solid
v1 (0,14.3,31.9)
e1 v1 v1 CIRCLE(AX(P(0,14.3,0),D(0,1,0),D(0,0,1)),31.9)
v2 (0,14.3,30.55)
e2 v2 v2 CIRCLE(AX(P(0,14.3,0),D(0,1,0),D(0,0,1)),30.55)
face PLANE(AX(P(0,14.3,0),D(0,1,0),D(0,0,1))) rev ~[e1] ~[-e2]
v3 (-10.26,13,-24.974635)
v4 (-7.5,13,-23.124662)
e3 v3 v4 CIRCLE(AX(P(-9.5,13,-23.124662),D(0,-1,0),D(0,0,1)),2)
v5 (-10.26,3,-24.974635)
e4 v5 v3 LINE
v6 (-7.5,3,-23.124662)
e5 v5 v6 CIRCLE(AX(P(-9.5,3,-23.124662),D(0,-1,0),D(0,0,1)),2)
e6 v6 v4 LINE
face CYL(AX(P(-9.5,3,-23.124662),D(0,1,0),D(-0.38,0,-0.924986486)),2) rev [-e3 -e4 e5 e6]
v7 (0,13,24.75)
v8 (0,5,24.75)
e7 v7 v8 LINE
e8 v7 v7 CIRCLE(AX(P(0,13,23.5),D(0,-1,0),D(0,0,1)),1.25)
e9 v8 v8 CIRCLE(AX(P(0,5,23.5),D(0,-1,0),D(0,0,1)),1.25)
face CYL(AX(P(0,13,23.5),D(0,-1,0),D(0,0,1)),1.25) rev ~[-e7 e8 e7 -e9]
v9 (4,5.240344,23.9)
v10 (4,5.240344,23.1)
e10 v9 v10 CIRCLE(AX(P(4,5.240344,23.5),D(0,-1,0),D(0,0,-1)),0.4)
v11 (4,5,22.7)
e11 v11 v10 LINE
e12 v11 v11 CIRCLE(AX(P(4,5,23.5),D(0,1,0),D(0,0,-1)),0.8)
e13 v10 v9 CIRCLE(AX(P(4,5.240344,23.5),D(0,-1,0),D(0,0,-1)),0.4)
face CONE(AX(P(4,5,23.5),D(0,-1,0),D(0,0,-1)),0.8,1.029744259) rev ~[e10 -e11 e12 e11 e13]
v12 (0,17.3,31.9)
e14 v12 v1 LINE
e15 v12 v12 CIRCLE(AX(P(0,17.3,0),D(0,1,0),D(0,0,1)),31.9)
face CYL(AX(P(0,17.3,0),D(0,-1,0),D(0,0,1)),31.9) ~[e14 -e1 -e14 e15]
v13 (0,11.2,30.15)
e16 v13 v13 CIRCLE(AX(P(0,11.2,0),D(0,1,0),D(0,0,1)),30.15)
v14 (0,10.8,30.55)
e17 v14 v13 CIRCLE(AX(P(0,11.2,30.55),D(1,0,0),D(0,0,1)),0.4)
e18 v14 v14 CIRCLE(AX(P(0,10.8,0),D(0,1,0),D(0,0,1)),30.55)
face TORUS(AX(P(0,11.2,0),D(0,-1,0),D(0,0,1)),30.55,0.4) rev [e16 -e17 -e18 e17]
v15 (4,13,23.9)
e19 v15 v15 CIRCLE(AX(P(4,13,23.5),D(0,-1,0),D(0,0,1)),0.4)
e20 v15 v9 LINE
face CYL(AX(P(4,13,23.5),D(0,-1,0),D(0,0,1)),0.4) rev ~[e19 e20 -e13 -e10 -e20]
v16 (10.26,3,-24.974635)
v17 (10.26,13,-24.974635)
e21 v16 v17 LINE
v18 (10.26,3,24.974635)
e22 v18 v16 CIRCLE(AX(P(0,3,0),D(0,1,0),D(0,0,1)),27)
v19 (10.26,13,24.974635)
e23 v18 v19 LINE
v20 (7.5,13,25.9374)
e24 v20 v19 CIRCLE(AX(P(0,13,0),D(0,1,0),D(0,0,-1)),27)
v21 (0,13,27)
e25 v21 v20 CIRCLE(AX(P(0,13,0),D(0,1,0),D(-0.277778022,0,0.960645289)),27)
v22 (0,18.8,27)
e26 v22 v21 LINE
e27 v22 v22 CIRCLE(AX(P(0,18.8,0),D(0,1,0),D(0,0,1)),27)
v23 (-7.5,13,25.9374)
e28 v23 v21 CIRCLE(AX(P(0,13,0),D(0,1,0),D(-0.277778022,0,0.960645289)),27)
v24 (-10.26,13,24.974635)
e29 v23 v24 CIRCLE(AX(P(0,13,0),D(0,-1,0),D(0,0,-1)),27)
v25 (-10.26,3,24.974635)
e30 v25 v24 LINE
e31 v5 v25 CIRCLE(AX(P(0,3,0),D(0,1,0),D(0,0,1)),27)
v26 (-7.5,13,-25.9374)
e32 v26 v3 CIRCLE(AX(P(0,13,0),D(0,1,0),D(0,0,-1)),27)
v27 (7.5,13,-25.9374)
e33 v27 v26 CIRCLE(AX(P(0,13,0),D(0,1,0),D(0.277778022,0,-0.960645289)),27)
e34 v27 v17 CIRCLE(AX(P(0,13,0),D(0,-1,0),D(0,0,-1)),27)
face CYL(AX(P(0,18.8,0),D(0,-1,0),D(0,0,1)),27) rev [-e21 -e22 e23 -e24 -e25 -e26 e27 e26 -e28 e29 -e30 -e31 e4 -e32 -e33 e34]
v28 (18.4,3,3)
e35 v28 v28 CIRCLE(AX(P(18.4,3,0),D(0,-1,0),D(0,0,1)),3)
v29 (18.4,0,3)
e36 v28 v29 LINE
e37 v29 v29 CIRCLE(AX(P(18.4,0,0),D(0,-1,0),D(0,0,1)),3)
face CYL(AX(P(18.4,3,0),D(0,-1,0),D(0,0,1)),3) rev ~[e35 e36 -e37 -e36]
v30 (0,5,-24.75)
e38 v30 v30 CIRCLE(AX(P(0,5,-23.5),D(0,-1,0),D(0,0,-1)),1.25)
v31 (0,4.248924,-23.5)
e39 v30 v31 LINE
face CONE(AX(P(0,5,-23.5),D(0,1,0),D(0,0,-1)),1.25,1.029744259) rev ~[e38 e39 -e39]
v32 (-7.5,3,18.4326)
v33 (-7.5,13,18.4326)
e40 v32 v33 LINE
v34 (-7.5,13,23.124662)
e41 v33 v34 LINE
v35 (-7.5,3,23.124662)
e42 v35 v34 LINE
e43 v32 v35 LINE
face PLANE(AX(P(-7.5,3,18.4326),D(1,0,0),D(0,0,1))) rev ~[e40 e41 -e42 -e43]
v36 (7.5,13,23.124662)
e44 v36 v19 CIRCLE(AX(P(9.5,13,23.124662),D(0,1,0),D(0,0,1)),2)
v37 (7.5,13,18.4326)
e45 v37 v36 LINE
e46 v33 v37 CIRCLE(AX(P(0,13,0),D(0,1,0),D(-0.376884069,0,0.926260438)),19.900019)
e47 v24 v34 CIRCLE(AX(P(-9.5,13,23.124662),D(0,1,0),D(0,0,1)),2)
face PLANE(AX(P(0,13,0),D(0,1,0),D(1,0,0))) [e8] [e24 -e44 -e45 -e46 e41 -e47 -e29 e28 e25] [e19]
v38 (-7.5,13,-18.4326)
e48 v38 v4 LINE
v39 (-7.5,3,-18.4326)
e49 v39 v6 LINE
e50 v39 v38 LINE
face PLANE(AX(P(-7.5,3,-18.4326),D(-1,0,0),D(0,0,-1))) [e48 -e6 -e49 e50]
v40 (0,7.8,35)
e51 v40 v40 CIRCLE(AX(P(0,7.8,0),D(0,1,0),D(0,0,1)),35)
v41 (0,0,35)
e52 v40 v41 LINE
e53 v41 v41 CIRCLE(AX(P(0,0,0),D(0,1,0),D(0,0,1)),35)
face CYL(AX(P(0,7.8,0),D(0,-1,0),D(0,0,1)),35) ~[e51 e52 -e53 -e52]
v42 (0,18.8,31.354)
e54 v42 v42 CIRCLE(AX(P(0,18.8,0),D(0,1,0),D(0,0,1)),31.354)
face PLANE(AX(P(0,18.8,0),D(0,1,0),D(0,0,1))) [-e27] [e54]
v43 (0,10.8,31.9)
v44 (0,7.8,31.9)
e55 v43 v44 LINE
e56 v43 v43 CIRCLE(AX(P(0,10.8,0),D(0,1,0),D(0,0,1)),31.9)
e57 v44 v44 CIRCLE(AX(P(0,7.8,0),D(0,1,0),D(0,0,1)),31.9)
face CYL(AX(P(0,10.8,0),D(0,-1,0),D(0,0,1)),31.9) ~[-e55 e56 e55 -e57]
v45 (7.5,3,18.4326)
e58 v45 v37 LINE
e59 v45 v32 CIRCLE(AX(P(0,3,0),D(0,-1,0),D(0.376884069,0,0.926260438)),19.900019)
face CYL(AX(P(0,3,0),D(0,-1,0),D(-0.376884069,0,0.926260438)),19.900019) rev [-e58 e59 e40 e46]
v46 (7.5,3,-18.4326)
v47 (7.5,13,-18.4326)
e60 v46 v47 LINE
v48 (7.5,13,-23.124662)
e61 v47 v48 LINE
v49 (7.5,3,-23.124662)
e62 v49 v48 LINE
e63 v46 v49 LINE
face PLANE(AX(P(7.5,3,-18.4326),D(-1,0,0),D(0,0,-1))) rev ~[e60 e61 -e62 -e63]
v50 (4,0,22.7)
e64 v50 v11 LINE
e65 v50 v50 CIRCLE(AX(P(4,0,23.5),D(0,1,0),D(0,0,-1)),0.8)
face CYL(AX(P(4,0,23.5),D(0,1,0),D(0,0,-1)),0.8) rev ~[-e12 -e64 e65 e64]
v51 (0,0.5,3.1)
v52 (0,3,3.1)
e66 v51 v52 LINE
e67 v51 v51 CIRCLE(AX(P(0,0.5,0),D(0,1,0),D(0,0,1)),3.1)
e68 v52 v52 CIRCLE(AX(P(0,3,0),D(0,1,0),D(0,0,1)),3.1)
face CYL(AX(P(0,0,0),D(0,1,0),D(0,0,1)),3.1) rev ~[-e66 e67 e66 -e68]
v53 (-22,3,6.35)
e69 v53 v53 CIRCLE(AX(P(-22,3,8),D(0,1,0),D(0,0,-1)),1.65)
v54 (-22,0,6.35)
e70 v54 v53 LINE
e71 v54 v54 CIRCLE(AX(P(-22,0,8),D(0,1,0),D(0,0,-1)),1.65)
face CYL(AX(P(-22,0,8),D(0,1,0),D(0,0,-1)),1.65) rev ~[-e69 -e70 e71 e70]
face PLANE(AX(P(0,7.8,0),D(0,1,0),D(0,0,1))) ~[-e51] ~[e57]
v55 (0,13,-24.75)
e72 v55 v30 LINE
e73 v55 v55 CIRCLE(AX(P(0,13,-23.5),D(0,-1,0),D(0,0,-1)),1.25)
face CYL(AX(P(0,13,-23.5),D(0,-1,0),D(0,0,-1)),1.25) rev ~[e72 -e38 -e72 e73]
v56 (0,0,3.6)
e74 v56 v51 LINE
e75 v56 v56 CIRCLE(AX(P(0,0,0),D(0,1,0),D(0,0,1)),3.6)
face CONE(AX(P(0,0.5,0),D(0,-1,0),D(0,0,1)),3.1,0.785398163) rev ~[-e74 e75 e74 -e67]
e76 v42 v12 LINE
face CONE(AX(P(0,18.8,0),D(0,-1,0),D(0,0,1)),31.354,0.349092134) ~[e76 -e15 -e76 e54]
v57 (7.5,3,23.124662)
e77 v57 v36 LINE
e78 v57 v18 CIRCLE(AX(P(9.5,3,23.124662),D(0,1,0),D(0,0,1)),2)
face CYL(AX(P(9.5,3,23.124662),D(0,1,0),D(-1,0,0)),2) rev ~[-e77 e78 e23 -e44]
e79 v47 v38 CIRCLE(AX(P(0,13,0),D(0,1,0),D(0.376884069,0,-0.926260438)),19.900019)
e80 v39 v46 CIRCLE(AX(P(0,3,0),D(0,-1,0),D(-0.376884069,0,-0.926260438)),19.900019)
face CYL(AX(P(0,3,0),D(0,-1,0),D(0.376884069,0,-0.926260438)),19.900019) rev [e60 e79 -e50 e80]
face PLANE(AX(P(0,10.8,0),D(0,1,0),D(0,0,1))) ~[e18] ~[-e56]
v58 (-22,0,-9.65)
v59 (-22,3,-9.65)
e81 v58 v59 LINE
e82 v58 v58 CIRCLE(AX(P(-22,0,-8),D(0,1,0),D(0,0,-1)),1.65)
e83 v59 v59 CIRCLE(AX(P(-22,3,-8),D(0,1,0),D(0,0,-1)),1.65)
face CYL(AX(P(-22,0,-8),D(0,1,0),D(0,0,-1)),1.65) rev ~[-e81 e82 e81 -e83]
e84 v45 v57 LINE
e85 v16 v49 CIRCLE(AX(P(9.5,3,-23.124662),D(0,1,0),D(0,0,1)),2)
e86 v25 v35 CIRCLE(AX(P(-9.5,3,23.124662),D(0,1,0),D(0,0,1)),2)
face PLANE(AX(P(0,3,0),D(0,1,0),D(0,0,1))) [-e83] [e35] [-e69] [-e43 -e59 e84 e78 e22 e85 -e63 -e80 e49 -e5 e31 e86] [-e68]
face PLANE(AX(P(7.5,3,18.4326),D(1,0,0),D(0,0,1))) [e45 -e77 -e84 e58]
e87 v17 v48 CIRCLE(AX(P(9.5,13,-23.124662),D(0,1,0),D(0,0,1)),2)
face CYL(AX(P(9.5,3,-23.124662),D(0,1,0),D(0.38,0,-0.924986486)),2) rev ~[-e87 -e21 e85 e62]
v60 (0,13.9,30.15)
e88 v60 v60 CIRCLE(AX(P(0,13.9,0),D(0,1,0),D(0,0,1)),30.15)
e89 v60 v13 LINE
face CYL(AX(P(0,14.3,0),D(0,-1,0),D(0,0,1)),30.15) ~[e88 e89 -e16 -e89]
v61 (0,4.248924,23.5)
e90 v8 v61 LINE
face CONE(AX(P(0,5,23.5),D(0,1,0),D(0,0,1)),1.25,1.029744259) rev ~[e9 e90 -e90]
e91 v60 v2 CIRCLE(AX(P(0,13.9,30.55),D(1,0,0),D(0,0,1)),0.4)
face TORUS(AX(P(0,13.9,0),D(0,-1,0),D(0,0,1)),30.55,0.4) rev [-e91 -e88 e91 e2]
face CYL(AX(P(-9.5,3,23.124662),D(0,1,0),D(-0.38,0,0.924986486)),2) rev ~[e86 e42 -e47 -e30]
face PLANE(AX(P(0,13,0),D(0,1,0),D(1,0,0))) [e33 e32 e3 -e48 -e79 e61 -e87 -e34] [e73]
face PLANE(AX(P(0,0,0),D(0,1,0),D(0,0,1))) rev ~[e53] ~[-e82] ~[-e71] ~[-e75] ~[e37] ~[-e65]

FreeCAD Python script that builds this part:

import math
import FreeCAD as App
import Part
import Sketcher
Q = App.Units.Quantity


def edges_at(feature, points):
    """Names of the edges that pass closest to the given points."""
    edges = feature.Shape.Edges
    near = lambda p: min(range(len(edges)), key=lambda i: edges[i].distToShape(Part.Vertex(*p))[0])
    return sorted({f"Edge{near(p) + 1}" for p in points})

doc = App.newDocument("Part")
body = doc.addObject("PartDesign::Body", "Body")

sketch1 = doc.addObject("Sketcher::SketchObject", "Sketch")
body.addObject(sketch1)
sketch1.AttachmentSupport = (doc.YZ_Plane, [""])
sketch1.MapMode = "FlatFace"
sketch1.addGeometry(Part.LineSegment(App.Vector(0, 35, 0), App.Vector(0, 3.1, 0)), False)
sketch1.addGeometry(Part.LineSegment(App.Vector(0, 3.1, 0), App.Vector(3, 3.1, 0)), False)
sketch1.addGeometry(Part.LineSegment(App.Vector(3, 3.1, 0), App.Vector(3, 27, 0)), False)
sketch1.addGeometry(Part.LineSegment(App.Vector(3, 27, 0), App.Vector(18.8, 27, 0)), False)
sketch1.addGeometry(Part.LineSegment(App.Vector(18.8, 27, 0), App.Vector(18.8, 31.4, 0)), False)
sketch1.addGeometry(Part.LineSegment(App.Vector(18.8, 31.4, 0), App.Vector(17.3, 31.9, 0)), False)
sketch1.addGeometry(Part.LineSegment(App.Vector(17.3, 31.9, 0), App.Vector(14.3, 31.9, 0)), False)
sketch1.addGeometry(Part.LineSegment(App.Vector(14.3, 31.9, 0), App.Vector(14.3, 30.1, 0)), False)
sketch1.addGeometry(Part.LineSegment(App.Vector(14.3, 30.1, 0), App.Vector(10.8, 30.1, 0)), False)
sketch1.addGeometry(Part.LineSegment(App.Vector(10.8, 30.1, 0), App.Vector(10.8, 31.9, 0)), False)
sketch1.addGeometry(Part.LineSegment(App.Vector(10.8, 31.9, 0), App.Vector(7.8, 31.9, 0)), False)
sketch1.addGeometry(Part.LineSegment(App.Vector(7.8, 31.9, 0), App.Vector(7.8, 35, 0)), False)
sketch1.addGeometry(Part.LineSegment(App.Vector(7.8, 35, 0), App.Vector(0, 35, 0)), False)
sketch1.addConstraint(Sketcher.Constraint("Coincident", 0, 2, 1, 1))
sketch1.addConstraint(Sketcher.Constraint("Coincident", 1, 2, 2, 1))
sketch1.addConstraint(Sketcher.Constraint("Coincident", 2, 2, 3, 1))
sketch1.addConstraint(Sketcher.Constraint("Coincident", 3, 2, 4, 1))
sketch1.addConstraint(Sketcher.Constraint("Coincident", 4, 2, 5, 1))
sketch1.addConstraint(Sketcher.Constraint("Coincident", 5, 2, 6, 1))
sketch1.addConstraint(Sketcher.Constraint("Coincident", 6, 2, 7, 1))
sketch1.addConstraint(Sketcher.Constraint("Coincident", 7, 2, 8, 1))
sketch1.addConstraint(Sketcher.Constraint("Coincident", 8, 2, 9, 1))
sketch1.addConstraint(Sketcher.Constraint("Coincident", 9, 2, 10, 1))
sketch1.addConstraint(Sketcher.Constraint("Coincident", 10, 2, 11, 1))
sketch1.addConstraint(Sketcher.Constraint("Coincident", 11, 2, 12, 1))
sketch1.addConstraint(Sketcher.Constraint("Coincident", 12, 2, 0, 1))
sketch1.addConstraint(Sketcher.Constraint("Vertical", 0))
sketch1.addConstraint(Sketcher.Constraint("Horizontal", 1))
sketch1.addConstraint(Sketcher.Constraint("Vertical", 2))
sketch1.addConstraint(Sketcher.Constraint("Horizontal", 3))
sketch1.addConstraint(Sketcher.Constraint("Vertical", 4))
sketch1.addConstraint(Sketcher.Constraint("Horizontal", 6))
sketch1.addConstraint(Sketcher.Constraint("Vertical", 7))
sketch1.addConstraint(Sketcher.Constraint("Horizontal", 8))
sketch1.addConstraint(Sketcher.Constraint("Vertical", 9))
sketch1.addConstraint(Sketcher.Constraint("Horizontal", 10))
sketch1.addConstraint(Sketcher.Constraint("Vertical", 11))
sketch1.addConstraint(Sketcher.Constraint("Horizontal", 12))
sketch1.addConstraint(Sketcher.Constraint("PointOnObject", 0, 2, -2))
sketch1.addConstraint(Sketcher.Constraint("Horizontal", 6, 2, 9, 2))
sketch1.addConstraint(Sketcher.Constraint("Equal", 1, 6))
sketch1.addConstraint(Sketcher.Constraint("Equal", 6, 10))
sketch1.addConstraint(Sketcher.Constraint("DistanceX", 1, 1, 1, 2, Q("3 mm")))
sketch1.addConstraint(Sketcher.Constraint("DistanceX", 8, 2, 4, 2, Q("8 mm")))
sketch1.addConstraint(Sketcher.Constraint("DistanceY", 2, 2, 12, 2, Q("8 mm")))
sketch1.addConstraint(Sketcher.Constraint("DistanceX", -1, 1, 3, 2, Q("18.8 mm")))
sketch1.addConstraint(Sketcher.Constraint("DistanceX", 5, 2, 4, 2, Q("1.5 mm")))
sketch1.addConstraint(Sketcher.Constraint("DistanceY", 0, 2, 0, 1, Q("31.9 mm")))
sketch1.addConstraint(Sketcher.Constraint("DistanceY", 11, 1, 11, 2, Q("3.1 mm")))
sketch1.addConstraint(Sketcher.Constraint("DistanceY", -1, 1, 2, 2, Q("27 mm")))
sketch1.addConstraint(Sketcher.Constraint("DistanceY", 7, 2, 7, 1, Q("1.75 mm")))
sketch1.addConstraint(Sketcher.Constraint("DistanceY", 4, 1, 4, 2, Q("4.354 mm")))
revolution = doc.addObject("PartDesign::Revolution", "Revolution")
body.addObject(revolution)
revolution.Profile = sketch1
revolution.ReferenceAxis = (sketch1, ["H_Axis"])
revolution.Angle = 360
doc.recompute()

fillet = doc.addObject("PartDesign::Fillet", "Fillet")
body.addObject(fillet)
fillet.Base = (revolution, edges_at(revolution, [(0, 10.8, -30.15), (0, 14.3, -30.15)]))
fillet.Radius = 0.4
doc.recompute()

chamfer = doc.addObject("PartDesign::Chamfer", "Chamfer")
body.addObject(chamfer)
chamfer.Base = (fillet, edges_at(fillet, [(0, 0, -3.1)]))
chamfer.Size = 0.5

sketch2 = doc.addObject("Sketcher::SketchObject", "Sketch001")
body.addObject(sketch2)
sketch2.AttachmentSupport = (doc.XZ_Plane, [""])
sketch2.MapMode = "FlatFace"
sketch2.AttachmentOffset = App.Placement(App.Vector(0, 0, -3), App.Rotation())
sketch2.addGeometry(Part.LineSegment(App.Vector(-8, 18, 0), App.Vector(-8, 26, 0)), False)
sketch2.addGeometry(Part.ArcOfCircle(Part.Circle(App.Vector(0, 0, 0), App.Vector(0, 0, 1), 27), math.radians(74), math.radians(106)), False)
sketch2.addGeometry(Part.LineSegment(App.Vector(8, 26, 0), App.Vector(8, 18, 0)), False)
sketch2.addGeometry(Part.ArcOfCircle(Part.Circle(App.Vector(0, 0, 0), App.Vector(0, 0, 1), 20), math.radians(68), math.radians(112)), False)
sketch2.addGeometry(Part.ArcOfCircle(Part.Circle(App.Vector(0, 0, 0), App.Vector(0, 0, 1), 20), math.radians(-112), math.radians(-68)), False)
sketch2.addGeometry(Part.LineSegment(App.Vector(8, -18, 0), App.Vector(8, -26, 0)), False)
sketch2.addGeometry(Part.ArcOfCircle(Part.Circle(App.Vector(0, 0, 0), App.Vector(0, 0, 1), 27), math.radians(-106), math.radians(-74)), False)
sketch2.addGeometry(Part.LineSegment(App.Vector(-8, -26, 0), App.Vector(-8, -18, 0)), False)
sketch2.addConstraint(Sketcher.Constraint("Coincident", 0, 2, 1, 2))
sketch2.addConstraint(Sketcher.Constraint("Coincident", 1, 1, 2, 1))
sketch2.addConstraint(Sketcher.Constraint("Coincident", 2, 2, 3, 1))
sketch2.addConstraint(Sketcher.Constraint("Coincident", 3, 2, 0, 1))
sketch2.addConstraint(Sketcher.Constraint("Coincident", 4, 2, 5, 1))
sketch2.addConstraint(Sketcher.Constraint("Coincident", 5, 2, 6, 2))
sketch2.addConstraint(Sketcher.Constraint("Coincident", 6, 1, 7, 1))
sketch2.addConstraint(Sketcher.Constraint("Coincident", 7, 2, 4, 1))
sketch2.addConstraint(Sketcher.Constraint("Vertical", 0))
sketch2.addConstraint(Sketcher.Constraint("Vertical", 2))
sketch2.addConstraint(Sketcher.Constraint("Vertical", 5))
sketch2.addConstraint(Sketcher.Constraint("Vertical", 7))
sketch2.addConstraint(Sketcher.Constraint("Coincident", 1, 3, -1, 1))
sketch2.addConstraint(Sketcher.Constraint("Coincident", 3, 3, -1, 1))
sketch2.addConstraint(Sketcher.Constraint("Coincident", 4, 3, -1, 1))
sketch2.addConstraint(Sketcher.Constraint("Coincident", 6, 3, -1, 1))
sketch2.addConstraint(Sketcher.Constraint("Equal", 3, 4))
sketch2.addConstraint(Sketcher.Constraint("Equal", 1, 6))
sketch2.addConstraint(Sketcher.Constraint("Horizontal", 0, 2, 1, 1))
sketch2.addConstraint(Sketcher.Constraint("Horizontal", 5, 2, 6, 1))
sketch2.addConstraint(Sketcher.Constraint("Vertical", 2, 2, 4, 2))
sketch2.addConstraint(Sketcher.Constraint("Radius", 1, Q("27 mm")))
sketch2.addConstraint(Sketcher.Constraint("DistanceX", 0, 2, 1, 1, Q("15 mm")))
sketch2.addConstraint(Sketcher.Constraint("Radius", 3, Q("19.9 mm")))
pad1 = doc.addObject("PartDesign::Pad", "Pad")
body.addObject(pad1)
pad1.Profile = sketch2
pad1.Length = 10
pad1.Reversed = True

sketch3 = doc.addObject("Sketcher::SketchObject", "Sketch002")
body.addObject(sketch3)
sketch3.AttachmentSupport = (doc.XZ_Plane, [""])
sketch3.MapMode = "FlatFace"
sketch3.AttachmentOffset = App.Placement(App.Vector(0, 0, -13), App.Rotation())
sketch3.addGeometry(Part.Circle(App.Vector(0, 23.5, 0), App.Vector(0, 0, 1), 1.2), False)
sketch3.addConstraint(Sketcher.Constraint("PointOnObject", 0, 3, -2))
sketch3.addConstraint(Sketcher.Constraint("Diameter", 0, Q("2.5 mm")))
sketch3.addConstraint(Sketcher.Constraint("DistanceY", -1, 1, 0, 3, Q("23.5 mm")))
doc.recompute()
hole = doc.addObject("PartDesign::Hole", "Hole")
body.addObject(hole)
hole.Profile = sketch3
hole.ThreadType = "None"
hole.Diameter = 2.5
hole.DepthType = "Dimension"
hole.Depth = 8
hole.DrillPoint = "Angled"
hole.DrillPointAngle = 118
hole.Reversed = True
doc.recompute()

polarpattern = doc.addObject("PartDesign::PolarPattern", "PolarPattern")
body.addObject(polarpattern)
polarpattern.Originals = [hole]
polarpattern.Axis = (doc.Y_Axis, [""])
polarpattern.Angle = 360
polarpattern.Occurrences = 2
body.Tip = polarpattern

sketch4 = doc.addObject("Sketcher::SketchObject", "Sketch003")
body.addObject(sketch4)
sketch4.AttachmentSupport = (doc.XZ_Plane, [""])
sketch4.MapMode = "FlatFace"
sketch4.addGeometry(Part.Circle(App.Vector(-22, -8, 0), App.Vector(0, 0, 1), 1.6), False)
sketch4.addGeometry(Part.Circle(App.Vector(-22, 8, 0), App.Vector(0, 0, 1), 1.6), False)
sketch4.addConstraint(Sketcher.Constraint("Equal", 0, 1))
sketch4.addConstraint(Sketcher.Constraint("Symmetric", 0, 3, 1, 3, -1))
sketch4.addConstraint(Sketcher.Constraint("Diameter", 0, Q("3.3 mm")))
sketch4.addConstraint(Sketcher.Constraint("DistanceX", 0, 3, -1, 1, Q("22 mm")))
sketch4.addConstraint(Sketcher.Constraint("DistanceY", 0, 3, -1, 1, Q("8 mm")))
doc.recompute()
hole2 = doc.addObject("PartDesign::Hole", "Hole001")
body.addObject(hole2)
hole2.Profile = sketch4
hole2.ThreadType = "None"
hole2.Diameter = 3.3
hole2.DepthType = "ThroughAll"

sketch5 = doc.addObject("Sketcher::SketchObject", "Sketch004")
body.addObject(sketch5)
sketch5.AttachmentSupport = (doc.XZ_Plane, [""])
sketch5.MapMode = "FlatFace"
sketch5.AttachmentOffset = App.Placement(App.Vector(0, 0, -13), App.Rotation())
sketch5.addGeometry(Part.Circle(App.Vector(4, 23.5, 0), App.Vector(0, 0, 1), 0.4), False)
sketch5.addConstraint(Sketcher.Constraint("Diameter", 0, Q("0.8 mm")))
sketch5.addConstraint(Sketcher.Constraint("DistanceX", -1, 1, 0, 3, Q("4 mm")))
sketch5.addConstraint(Sketcher.Constraint("DistanceY", -1, 1, 0, 3, Q("23.5 mm")))
doc.recompute()
hole3 = doc.addObject("PartDesign::Hole", "Hole002")
body.addObject(hole3)
hole3.Profile = sketch5
hole3.ThreadType = "None"
hole3.Diameter = 0.8
hole3.DepthType = "ThroughAll"
hole3.Reversed = True

sketch6 = doc.addObject("Sketcher::SketchObject", "Sketch005")
body.addObject(sketch6)
sketch6.AttachmentSupport = (doc.XZ_Plane, [""])
sketch6.MapMode = "FlatFace"
sketch6.addGeometry(Part.Circle(App.Vector(4, 23.5, 0), App.Vector(0, 0, 1), 0.8), False)
sketch6.addConstraint(Sketcher.Constraint("Diameter", 0, Q("1.6 mm")))
sketch6.addConstraint(Sketcher.Constraint("DistanceX", -1, 1, 0, 3, Q("4 mm")))
sketch6.addConstraint(Sketcher.Constraint("DistanceY", -1, 1, 0, 3, Q("23.5 mm")))
doc.recompute()
hole4 = doc.addObject("PartDesign::Hole", "Hole003")
body.addObject(hole4)
hole4.Profile = sketch6
hole4.ThreadType = "None"
hole4.Diameter = 1.6
hole4.DepthType = "Dimension"
hole4.Depth = 5
hole4.DrillPoint = "Angled"
hole4.DrillPointAngle = 118

sketch7 = doc.addObject("Sketcher::SketchObject", "Sketch006")
body.addObject(sketch7)
sketch7.AttachmentSupport = (doc.XZ_Plane, [""])
sketch7.MapMode = "FlatFace"
sketch7.AttachmentOffset = App.Placement(App.Vector(0, 0, -3), App.Rotation())
sketch7.addGeometry(Part.Circle(App.Vector(18.4, 0, 0), App.Vector(0, 0, 1), 3), False)
sketch7.addConstraint(Sketcher.Constraint("PointOnObject", 0, 3, -1))
sketch7.addConstraint(Sketcher.Constraint("Diameter", 0, Q("6 mm")))
sketch7.addConstraint(Sketcher.Constraint("DistanceX", -1, 1, 0, 3, Q("18.4 mm")))
doc.recompute()
hole5 = doc.addObject("PartDesign::Hole", "Hole004")
body.addObject(hole5)
hole5.Profile = sketch7
hole5.ThreadType = "None"
hole5.Diameter = 6
hole5.DepthType = "ThroughAll"
hole5.Reversed = True
doc.recompute()

fillet2 = doc.addObject("PartDesign::Fillet", "Fillet001")
body.addObject(fillet2)
fillet2.Base = (hole5, edges_at(hole5, [
    (7.5, 8, 25.937),
    (-7.5, 8, 25.937),
    (7.5, 8, -25.937),
    (-7.5, 8, -25.937),
]))
fillet2.Radius = 2

doc.recompute()
